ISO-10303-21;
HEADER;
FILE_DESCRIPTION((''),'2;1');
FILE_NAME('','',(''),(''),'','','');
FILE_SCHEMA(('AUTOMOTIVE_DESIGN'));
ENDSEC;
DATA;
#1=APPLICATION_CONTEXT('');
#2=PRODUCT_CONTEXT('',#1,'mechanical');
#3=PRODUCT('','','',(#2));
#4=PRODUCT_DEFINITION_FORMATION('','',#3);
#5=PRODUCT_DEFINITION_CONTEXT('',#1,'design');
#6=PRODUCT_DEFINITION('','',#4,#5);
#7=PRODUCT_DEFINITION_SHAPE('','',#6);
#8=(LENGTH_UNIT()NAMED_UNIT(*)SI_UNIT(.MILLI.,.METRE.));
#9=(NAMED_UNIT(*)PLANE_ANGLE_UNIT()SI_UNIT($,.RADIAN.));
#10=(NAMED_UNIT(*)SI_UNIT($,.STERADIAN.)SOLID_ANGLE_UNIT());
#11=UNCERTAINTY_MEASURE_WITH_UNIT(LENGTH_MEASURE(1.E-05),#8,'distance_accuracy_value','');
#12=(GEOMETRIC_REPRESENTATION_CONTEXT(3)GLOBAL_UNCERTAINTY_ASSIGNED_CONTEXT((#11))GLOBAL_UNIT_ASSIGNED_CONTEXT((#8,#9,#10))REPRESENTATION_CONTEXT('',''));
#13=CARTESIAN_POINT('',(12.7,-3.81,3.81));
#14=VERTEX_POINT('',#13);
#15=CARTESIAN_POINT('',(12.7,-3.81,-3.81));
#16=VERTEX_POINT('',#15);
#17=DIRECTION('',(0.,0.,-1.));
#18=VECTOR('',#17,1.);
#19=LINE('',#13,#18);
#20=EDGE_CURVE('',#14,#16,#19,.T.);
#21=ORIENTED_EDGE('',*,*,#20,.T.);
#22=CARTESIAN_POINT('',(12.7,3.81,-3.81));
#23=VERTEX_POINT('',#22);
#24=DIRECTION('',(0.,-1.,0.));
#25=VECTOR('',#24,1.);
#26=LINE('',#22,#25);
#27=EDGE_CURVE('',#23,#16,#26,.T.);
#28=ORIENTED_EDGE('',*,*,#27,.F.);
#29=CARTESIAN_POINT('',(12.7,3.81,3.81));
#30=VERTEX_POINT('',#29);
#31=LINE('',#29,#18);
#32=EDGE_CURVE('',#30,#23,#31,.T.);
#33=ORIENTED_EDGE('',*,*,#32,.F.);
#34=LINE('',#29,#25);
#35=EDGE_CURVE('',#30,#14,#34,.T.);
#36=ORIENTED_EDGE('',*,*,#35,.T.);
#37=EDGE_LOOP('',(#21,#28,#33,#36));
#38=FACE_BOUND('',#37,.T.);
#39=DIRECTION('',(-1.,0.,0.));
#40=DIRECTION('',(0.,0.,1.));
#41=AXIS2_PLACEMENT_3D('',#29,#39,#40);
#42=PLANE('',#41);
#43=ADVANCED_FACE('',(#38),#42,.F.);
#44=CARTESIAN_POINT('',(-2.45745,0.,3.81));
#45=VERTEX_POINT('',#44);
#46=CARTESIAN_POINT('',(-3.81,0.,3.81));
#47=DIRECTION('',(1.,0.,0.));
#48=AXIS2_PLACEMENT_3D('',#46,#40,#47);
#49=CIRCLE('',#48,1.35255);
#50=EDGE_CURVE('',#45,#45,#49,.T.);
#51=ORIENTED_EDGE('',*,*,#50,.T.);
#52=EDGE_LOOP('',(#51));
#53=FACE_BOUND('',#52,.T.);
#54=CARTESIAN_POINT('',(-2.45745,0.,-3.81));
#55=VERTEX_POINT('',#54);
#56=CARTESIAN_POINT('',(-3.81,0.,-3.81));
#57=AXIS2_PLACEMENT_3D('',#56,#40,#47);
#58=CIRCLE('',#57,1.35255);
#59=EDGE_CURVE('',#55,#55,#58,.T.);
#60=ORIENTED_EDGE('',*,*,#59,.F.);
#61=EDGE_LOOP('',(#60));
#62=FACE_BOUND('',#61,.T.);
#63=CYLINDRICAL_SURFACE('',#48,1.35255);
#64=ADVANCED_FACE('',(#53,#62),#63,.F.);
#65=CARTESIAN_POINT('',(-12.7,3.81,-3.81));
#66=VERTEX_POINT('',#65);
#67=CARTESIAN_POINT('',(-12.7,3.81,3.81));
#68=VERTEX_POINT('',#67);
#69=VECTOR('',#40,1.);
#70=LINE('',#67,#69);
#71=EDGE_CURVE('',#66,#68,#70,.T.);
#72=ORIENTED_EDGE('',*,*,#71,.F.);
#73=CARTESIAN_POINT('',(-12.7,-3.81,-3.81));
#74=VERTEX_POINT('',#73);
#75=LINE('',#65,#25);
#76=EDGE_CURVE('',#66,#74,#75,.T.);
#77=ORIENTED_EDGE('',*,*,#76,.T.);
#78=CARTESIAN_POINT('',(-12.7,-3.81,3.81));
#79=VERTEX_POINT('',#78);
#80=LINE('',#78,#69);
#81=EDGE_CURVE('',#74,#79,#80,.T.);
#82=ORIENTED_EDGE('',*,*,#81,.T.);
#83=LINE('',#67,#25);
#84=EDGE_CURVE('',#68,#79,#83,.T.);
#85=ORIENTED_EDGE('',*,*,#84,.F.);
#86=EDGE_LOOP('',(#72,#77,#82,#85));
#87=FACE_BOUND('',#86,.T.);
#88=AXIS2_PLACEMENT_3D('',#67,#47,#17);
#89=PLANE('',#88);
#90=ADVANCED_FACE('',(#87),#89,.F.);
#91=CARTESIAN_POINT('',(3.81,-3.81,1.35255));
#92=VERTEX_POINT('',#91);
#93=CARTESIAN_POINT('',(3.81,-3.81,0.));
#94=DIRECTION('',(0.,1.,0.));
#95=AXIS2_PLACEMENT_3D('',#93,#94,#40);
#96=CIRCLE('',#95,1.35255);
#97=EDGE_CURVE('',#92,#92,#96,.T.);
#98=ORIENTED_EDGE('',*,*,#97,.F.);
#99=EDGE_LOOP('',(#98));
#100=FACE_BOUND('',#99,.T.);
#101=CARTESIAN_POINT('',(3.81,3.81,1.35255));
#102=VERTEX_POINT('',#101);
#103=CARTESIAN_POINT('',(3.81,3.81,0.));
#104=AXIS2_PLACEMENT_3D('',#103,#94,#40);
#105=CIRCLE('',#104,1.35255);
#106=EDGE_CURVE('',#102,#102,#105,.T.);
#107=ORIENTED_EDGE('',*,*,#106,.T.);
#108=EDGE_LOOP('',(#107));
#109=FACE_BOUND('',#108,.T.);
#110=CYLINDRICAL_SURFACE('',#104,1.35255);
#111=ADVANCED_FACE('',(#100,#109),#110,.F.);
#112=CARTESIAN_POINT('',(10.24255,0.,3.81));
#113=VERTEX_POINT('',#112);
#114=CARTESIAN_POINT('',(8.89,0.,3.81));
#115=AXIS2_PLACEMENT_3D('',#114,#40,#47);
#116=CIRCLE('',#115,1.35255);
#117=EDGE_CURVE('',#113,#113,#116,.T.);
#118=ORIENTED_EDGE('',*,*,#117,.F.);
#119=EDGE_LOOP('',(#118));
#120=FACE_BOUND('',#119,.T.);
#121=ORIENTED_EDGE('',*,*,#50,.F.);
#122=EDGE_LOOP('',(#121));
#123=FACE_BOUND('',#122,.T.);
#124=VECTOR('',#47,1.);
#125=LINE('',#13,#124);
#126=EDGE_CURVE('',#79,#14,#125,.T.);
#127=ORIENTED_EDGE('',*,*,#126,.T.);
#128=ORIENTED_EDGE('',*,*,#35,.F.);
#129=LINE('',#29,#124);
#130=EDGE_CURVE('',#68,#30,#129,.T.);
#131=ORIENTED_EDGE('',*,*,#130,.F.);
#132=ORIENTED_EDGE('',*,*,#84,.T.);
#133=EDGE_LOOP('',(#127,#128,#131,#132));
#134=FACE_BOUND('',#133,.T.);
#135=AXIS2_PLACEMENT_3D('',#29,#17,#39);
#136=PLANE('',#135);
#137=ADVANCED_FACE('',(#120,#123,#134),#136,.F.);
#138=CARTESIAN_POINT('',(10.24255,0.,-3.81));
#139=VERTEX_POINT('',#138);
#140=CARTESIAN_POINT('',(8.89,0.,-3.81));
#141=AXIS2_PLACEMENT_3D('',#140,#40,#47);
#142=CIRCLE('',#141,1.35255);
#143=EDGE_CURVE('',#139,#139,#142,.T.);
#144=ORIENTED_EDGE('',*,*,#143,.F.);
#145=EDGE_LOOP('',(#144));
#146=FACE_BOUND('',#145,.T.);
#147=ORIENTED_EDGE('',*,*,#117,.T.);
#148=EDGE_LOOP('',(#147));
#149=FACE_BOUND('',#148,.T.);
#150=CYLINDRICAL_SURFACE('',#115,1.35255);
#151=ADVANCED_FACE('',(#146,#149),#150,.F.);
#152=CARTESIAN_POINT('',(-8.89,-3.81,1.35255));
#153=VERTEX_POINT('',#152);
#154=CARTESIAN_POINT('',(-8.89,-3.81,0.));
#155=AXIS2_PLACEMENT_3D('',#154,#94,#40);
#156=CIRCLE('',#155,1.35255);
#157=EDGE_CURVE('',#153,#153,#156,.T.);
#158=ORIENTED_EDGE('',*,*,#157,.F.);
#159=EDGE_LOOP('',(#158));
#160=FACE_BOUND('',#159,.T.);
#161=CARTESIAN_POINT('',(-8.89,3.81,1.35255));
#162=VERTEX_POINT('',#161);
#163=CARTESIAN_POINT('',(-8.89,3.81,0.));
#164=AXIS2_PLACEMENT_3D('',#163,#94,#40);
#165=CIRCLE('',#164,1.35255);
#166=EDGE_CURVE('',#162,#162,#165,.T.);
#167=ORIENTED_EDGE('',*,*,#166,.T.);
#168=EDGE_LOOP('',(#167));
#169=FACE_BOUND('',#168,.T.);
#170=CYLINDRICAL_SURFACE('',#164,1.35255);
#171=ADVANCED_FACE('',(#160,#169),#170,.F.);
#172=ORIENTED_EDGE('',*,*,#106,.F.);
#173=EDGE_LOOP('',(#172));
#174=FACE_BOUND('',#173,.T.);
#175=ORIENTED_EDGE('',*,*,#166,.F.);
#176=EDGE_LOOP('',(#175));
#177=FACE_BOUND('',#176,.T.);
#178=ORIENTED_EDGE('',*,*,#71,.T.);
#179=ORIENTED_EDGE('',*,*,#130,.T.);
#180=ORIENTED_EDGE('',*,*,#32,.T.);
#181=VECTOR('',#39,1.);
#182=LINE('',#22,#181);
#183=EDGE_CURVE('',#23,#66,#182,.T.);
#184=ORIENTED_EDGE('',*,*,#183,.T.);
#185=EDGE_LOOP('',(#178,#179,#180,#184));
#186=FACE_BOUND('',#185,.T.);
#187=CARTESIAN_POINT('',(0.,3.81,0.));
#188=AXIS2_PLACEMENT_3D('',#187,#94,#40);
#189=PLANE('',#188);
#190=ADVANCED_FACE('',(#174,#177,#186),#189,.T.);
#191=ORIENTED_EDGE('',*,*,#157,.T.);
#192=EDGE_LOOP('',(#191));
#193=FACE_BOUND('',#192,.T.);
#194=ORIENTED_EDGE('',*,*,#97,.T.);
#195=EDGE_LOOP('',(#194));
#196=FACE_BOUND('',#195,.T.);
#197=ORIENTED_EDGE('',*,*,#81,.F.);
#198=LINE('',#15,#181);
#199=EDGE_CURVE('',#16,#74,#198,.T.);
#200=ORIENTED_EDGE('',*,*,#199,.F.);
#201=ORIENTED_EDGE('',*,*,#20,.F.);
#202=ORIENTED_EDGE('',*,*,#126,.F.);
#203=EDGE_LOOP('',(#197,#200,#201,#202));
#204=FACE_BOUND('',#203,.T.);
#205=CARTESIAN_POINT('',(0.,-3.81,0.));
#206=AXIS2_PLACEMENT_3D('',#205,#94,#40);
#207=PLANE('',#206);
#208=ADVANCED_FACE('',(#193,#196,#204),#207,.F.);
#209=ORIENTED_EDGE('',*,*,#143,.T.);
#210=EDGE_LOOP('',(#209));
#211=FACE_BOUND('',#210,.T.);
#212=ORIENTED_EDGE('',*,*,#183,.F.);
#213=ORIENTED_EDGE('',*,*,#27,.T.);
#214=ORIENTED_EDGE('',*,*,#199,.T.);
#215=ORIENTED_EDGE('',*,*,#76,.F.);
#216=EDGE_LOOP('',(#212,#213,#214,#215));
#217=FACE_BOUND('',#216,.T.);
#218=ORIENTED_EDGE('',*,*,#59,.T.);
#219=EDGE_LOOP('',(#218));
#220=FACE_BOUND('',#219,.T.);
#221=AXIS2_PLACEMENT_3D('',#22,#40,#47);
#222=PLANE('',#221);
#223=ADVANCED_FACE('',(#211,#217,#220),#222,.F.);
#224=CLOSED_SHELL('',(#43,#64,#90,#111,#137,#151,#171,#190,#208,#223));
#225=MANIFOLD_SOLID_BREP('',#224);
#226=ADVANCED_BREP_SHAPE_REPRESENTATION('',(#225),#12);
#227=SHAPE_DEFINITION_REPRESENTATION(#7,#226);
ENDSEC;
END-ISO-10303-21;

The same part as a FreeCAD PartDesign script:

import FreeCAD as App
import Part
import Sketcher
from FreeCAD import Vector
Q = App.Units.Quantity


def add_polygon(sketch, points):
    """Adds a closed chain of lines whose ends are joined by coincident constraints."""
    first, n = sketch.GeometryCount, len(points)
    for a, b in zip(points, points[1:] + points[:1]):
        sketch.addGeometry(Part.LineSegment(App.Vector(*a, 0), App.Vector(*b, 0)), False)
    for i in range(n):
        sketch.addConstraint(Sketcher.Constraint("Coincident", first + i, 2, first + (i + 1) % n, 1))

doc = App.newDocument("Part")
body = doc.addObject("PartDesign::Body", "Body")

# Sketch on XZ plane
sketch1 = body.newObject("Sketcher::SketchObject", "Sketch")
sketch1.AttachmentSupport = (doc.getObject("XZ_Plane"), [""])
sketch1.MapMode = "FlatFace"
add_polygon(sketch1, [(-13, -4), (-13, 4), (13, 4), (13, -4)])  # lines 0-3
sketch1.addConstraint([
    Sketcher.Constraint("Vertical", 0),
    Sketcher.Constraint("Horizontal", 1),
    Sketcher.Constraint("Vertical", 2),
    Sketcher.Constraint("Horizontal", 3),
    Sketcher.Constraint("Symmetric", 0, 2, 2, 2, -1, 1),
    Sketcher.Constraint("DistanceX", 1, 1, 1, 2, Q("1 in")),
    Sketcher.Constraint("DistanceY", 0, 1, 0, 2, Q("0.3 in")),
])
pad1 = body.newObject("PartDesign::Pad", "Pad")
pad1.Profile = sketch1
pad1.Length = Q("0.3 in")
pad1.Midplane = True

# Sketch on XZ plane
sketch2 = body.newObject("Sketcher::SketchObject", "Sketch001")
sketch2.AttachmentSupport = (doc.getObject("XZ_Plane"), [""])
sketch2.MapMode = "FlatFace"
sketch2.AttachmentOffset = App.Placement(Vector(0, 0, -0.15 * 25.4), App.Rotation())
sketch2.addGeometry([
    Part.Circle(Vector(-8.9, 0, 0), Vector(0, 0, 1), 1.4),
    Part.Circle(Vector(3.8, 0, 0), Vector(0, 0, 1), 1.4),
], False)
sketch2.addConstraint([
    Sketcher.Constraint("Equal", 0, 1),
    Sketcher.Constraint("PointOnObject", 0, 3, -1),
    Sketcher.Constraint("PointOnObject", 1, 3, -1),
    Sketcher.Constraint("Diameter", 0, Q("0.1065 in")),
    Sketcher.Constraint("DistanceX", 0, 3, 1, 3, Q("0.5 in")),
    Sketcher.Constraint("DistanceX", 0, 3, -1, 1, Q("0.35 in")),
])
doc.recompute()
hole = body.newObject("PartDesign::Hole", "Hole")
hole.Profile = sketch2
hole.ThreadType = "None"
hole.Diameter = Q("0.1065 in")
hole.DepthType = "ThroughAll"
hole.Reversed = True

# Sketch on XY plane
sketch3 = body.newObject("Sketcher::SketchObject", "Sketch002")
sketch3.AttachmentSupport = (doc.getObject("XY_Plane"), [""])
sketch3.MapMode = "FlatFace"
sketch3.AttachmentOffset = App.Placement(Vector(0, 0, 0.15 * 25.4), App.Rotation())
sketch3.addGeometry([
    Part.Circle(Vector(-3.8, 0, 0), Vector(0, 0, 1), 1.4),
    Part.Circle(Vector(8.9, 0, 0), Vector(0, 0, 1), 1.4),
], False)
sketch3.addConstraint([
    Sketcher.Constraint("Equal", 0, 1),
    Sketcher.Constraint("PointOnObject", 0, 3, -1),
    Sketcher.Constraint("PointOnObject", 1, 3, -1),
    Sketcher.Constraint("Diameter", 0, Q("0.1065 in")),
    Sketcher.Constraint("DistanceX", 0, 3, 1, 3, Q("0.5 in")),
    Sketcher.Constraint("DistanceX", 0, 3, -1, 1, Q("0.15 in")),
])
doc.recompute()
hole2 = body.newObject("PartDesign::Hole", "Hole001")
hole2.Profile = sketch3
hole2.ThreadType = "None"
hole2.Diameter = Q("0.1065 in")
hole2.DepthType = "ThroughAll"

doc.recompute()
